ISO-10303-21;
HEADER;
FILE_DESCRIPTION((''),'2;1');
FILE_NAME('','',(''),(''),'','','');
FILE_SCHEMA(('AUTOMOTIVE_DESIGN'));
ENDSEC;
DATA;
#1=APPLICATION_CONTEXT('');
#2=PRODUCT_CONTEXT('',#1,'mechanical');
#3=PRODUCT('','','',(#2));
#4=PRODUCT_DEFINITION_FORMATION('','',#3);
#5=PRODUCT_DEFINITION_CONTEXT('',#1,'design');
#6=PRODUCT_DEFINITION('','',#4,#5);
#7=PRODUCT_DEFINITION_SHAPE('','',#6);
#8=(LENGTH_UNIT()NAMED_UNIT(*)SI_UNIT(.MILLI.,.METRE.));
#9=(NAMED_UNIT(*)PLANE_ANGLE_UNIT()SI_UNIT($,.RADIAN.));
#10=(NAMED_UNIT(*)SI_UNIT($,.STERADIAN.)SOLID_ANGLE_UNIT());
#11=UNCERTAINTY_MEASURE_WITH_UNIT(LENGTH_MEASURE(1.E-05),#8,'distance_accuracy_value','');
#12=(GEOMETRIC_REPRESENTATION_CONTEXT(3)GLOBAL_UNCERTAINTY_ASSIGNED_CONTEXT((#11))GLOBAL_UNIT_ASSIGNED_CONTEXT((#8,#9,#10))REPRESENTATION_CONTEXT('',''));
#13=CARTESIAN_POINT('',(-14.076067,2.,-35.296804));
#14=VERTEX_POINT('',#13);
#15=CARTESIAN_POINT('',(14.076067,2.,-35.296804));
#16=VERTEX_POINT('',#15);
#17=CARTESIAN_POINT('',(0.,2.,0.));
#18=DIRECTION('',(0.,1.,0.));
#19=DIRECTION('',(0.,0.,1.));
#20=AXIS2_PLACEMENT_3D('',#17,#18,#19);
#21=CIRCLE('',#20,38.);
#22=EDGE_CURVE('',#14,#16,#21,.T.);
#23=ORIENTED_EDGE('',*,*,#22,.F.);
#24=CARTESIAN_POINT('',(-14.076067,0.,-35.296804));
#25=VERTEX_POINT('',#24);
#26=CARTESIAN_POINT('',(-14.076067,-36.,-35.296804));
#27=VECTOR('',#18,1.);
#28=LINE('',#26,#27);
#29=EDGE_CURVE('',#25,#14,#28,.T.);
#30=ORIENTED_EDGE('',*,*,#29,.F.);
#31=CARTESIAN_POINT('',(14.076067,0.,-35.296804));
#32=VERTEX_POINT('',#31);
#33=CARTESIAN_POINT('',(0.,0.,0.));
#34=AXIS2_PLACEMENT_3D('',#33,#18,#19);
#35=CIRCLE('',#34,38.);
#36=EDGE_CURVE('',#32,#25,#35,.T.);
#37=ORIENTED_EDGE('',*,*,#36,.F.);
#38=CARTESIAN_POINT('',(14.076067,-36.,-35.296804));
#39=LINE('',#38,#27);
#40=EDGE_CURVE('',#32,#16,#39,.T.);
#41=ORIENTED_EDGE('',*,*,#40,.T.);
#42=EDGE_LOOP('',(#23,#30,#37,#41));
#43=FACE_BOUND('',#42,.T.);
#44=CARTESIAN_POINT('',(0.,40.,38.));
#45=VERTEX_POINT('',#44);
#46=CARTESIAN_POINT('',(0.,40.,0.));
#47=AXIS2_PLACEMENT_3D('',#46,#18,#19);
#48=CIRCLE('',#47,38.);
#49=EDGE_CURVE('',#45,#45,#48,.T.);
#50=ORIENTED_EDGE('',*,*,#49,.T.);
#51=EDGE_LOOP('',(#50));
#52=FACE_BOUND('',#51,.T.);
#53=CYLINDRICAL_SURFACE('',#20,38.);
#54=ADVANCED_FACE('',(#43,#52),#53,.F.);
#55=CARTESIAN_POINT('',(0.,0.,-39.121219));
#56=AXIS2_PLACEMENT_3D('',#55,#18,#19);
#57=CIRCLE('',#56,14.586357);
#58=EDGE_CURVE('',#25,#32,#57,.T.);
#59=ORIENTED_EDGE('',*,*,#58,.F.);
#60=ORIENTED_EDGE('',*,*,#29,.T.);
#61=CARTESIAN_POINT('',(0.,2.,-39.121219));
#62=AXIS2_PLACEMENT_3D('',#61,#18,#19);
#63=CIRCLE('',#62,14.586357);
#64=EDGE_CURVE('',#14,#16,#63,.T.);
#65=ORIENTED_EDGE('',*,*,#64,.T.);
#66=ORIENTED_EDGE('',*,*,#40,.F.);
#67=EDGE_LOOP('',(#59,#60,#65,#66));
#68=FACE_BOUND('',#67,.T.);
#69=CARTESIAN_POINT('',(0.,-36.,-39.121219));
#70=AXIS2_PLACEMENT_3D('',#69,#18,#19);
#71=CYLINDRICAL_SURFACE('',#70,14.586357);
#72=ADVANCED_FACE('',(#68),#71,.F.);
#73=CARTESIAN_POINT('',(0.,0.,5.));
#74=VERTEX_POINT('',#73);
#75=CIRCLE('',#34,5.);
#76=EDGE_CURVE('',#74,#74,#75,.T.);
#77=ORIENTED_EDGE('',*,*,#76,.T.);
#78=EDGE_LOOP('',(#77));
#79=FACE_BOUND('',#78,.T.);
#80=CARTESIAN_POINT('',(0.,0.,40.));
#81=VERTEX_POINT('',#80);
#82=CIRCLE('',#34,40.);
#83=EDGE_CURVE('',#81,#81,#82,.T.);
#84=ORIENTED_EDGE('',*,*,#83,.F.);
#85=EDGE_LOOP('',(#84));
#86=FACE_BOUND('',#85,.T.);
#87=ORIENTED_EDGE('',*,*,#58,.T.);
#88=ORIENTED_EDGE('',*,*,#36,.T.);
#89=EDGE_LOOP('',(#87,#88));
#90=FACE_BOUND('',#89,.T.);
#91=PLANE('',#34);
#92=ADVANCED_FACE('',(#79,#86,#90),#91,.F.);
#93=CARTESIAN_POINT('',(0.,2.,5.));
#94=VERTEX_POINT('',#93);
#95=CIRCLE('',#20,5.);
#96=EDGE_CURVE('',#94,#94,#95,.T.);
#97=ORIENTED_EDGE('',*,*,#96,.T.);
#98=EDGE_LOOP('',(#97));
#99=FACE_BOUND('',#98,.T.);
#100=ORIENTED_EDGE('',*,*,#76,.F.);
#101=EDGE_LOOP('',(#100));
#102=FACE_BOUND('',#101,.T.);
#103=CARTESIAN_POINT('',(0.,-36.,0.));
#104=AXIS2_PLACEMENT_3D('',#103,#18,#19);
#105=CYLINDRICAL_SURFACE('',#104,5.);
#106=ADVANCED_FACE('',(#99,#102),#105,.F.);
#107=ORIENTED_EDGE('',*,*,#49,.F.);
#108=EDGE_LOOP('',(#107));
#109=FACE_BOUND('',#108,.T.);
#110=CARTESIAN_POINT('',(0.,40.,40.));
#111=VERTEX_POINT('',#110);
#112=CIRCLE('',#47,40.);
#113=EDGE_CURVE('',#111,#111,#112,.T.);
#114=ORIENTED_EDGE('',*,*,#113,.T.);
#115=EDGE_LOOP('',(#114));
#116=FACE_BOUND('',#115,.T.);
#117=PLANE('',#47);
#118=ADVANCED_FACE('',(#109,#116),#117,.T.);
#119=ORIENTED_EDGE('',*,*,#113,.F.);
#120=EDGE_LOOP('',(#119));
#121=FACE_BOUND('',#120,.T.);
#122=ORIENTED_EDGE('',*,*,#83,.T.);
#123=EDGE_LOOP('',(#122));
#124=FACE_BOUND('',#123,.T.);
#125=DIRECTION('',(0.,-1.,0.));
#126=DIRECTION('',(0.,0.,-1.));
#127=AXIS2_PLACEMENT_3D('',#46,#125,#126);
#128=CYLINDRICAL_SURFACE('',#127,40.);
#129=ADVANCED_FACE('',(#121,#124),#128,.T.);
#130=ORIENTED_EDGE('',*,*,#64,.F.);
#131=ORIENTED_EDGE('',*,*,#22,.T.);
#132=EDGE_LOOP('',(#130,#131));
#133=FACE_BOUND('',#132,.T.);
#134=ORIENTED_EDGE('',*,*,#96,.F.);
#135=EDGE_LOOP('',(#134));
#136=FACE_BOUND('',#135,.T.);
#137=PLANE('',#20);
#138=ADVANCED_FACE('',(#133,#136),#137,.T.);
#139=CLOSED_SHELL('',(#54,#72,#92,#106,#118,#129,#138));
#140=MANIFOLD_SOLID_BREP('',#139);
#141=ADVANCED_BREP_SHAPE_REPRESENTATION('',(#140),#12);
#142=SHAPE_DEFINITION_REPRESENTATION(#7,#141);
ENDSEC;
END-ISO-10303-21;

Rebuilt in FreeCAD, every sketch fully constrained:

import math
import FreeCAD as App
import Part
import Sketcher

V = App.Vector

doc = App.newDocument("Part")
params = doc.addObject("Spreadsheet::Sheet", "Params")
for row, (alias, value) in enumerate([
    ("sketch1_diameter", "80 mm"),
    ("pad1_length", "40 mm"),
    ("sketch2_diameter", "76 mm"),
    ("pocket1_length", "38 mm"),
    ("sketch3_radius", "38 mm"),
    ("pocket2_length", "38 mm"),
    ("sketch4_diameter", "10 mm"),
    ("pocket3_length", "38 mm"),
], start=1):
    params.set(f"A{row}", alias)
    params.set(f"B{row}", "=" + value)
    params.setAlias(f"B{row}", alias)

body = doc.addObject("PartDesign::Body", "Body")

sketch1 = doc.addObject("Sketcher::SketchObject", "Sketch")
body.addObject(sketch1)
sketch1.AttachmentSupport = (doc.XZ_Plane, [""])
sketch1.MapMode = "FlatFace"
sketch1.addGeometry(Part.Circle(V(0, 0, 0), V(0, 0, 1), 40), False)
sketch1.addConstraint(Sketcher.Constraint("Coincident", 0, 3, -1, 1))
sketch1.addConstraint(Sketcher.Constraint("Diameter", 0, 80.0))
sketch1.setExpression("Constraints[1]", "Params.sketch1_diameter")
pad1 = doc.addObject("PartDesign::Pad", "Pad")
body.addObject(pad1)
pad1.Profile = sketch1
pad1.setExpression("Length", "Params.pad1_length")
pad1.Reversed = True

sketch2 = doc.addObject("Sketcher::SketchObject", "Sketch001")
body.addObject(sketch2)
sketch2.AttachmentSupport = (doc.XZ_Plane, [""])
sketch2.MapMode = "FlatFace"
sketch2.AttachmentOffset = App.Placement(V(0, 0, -40), App.Rotation())
sketch2.addGeometry(Part.Circle(V(0, 0, 0), V(0, 0, 1), 38), False)
sketch2.addConstraint(Sketcher.Constraint("Coincident", 0, 3, -1, 1))
sketch2.addConstraint(Sketcher.Constraint("Diameter", 0, 76.0))
sketch2.setExpression("Constraints[1]", "Params.sketch2_diameter")
pocket1 = doc.addObject("PartDesign::Pocket", "Pocket")
body.addObject(pocket1)
pocket1.Profile = sketch2
pocket1.setExpression("Length", "Params.pocket1_length")
pocket1.Reversed = True

sketch3 = doc.addObject("Sketcher::SketchObject", "Sketch002")
body.addObject(sketch3)
sketch3.AttachmentSupport = (doc.XZ_Plane, [""])
sketch3.MapMode = "FlatFace"
sketch3.AttachmentOffset = App.Placement(V(0, 0, -2), App.Rotation())
sketch3.addGeometry(Part.ArcOfCircle(Part.Circle(V(0, -39.121219, 0), V(0, 0, 1), 14.586357), math.radians(15.200126), math.radians(164.799874)), False)
sketch3.addGeometry(Part.ArcOfCircle(Part.Circle(V(0, 0, 0), V(0, 0, 1), 38), math.radians(-111.741695), math.radians(-68.258305)), False)
sketch3.addConstraint(Sketcher.Constraint("Coincident", 0, 1, 1, 2))
sketch3.addConstraint(Sketcher.Constraint("Coincident", 1, 1, 0, 2))
sketch3.addConstraint(Sketcher.Constraint("Coincident", 1, 3, -1, 1))
sketch3.addConstraint(Sketcher.Constraint("PointOnObject", 0, 3, -2))
sketch3.addConstraint(Sketcher.Constraint("Radius", 1, 38.0))
sketch3.addConstraint(Sketcher.Constraint("Radius", 0, 14.586357))
sketch3.addConstraint(Sketcher.Constraint("DistanceY", 0, 3, -1, 1, 39.121219))
sketch3.setExpression("Constraints[4]", "Params.sketch3_radius")
pocket2 = doc.addObject("PartDesign::Pocket", "Pocket001")
body.addObject(pocket2)
pocket2.Profile = sketch3
pocket2.setExpression("Length", "Params.pocket2_length")
pocket2.Reversed = True

sketch4 = doc.addObject("Sketcher::SketchObject", "Sketch003")
body.addObject(sketch4)
sketch4.AttachmentSupport = (doc.XZ_Plane, [""])
sketch4.MapMode = "FlatFace"
sketch4.AttachmentOffset = App.Placement(V(0, 0, -2), App.Rotation())
sketch4.addGeometry(Part.Circle(V(0, 0, 0), V(0, 0, 1), 5), False)
sketch4.addConstraint(Sketcher.Constraint("Coincident", 0, 3, -1, 1))
sketch4.addConstraint(Sketcher.Constraint("Diameter", 0, 10.0))
sketch4.setExpression("Constraints[1]", "Params.sketch4_diameter")
pocket3 = doc.addObject("PartDesign::Pocket", "Pocket002")
body.addObject(pocket3)
pocket3.Profile = sketch4
pocket3.setExpression("Length", "Params.pocket3_length")
pocket3.Reversed = True

doc.recompute()
